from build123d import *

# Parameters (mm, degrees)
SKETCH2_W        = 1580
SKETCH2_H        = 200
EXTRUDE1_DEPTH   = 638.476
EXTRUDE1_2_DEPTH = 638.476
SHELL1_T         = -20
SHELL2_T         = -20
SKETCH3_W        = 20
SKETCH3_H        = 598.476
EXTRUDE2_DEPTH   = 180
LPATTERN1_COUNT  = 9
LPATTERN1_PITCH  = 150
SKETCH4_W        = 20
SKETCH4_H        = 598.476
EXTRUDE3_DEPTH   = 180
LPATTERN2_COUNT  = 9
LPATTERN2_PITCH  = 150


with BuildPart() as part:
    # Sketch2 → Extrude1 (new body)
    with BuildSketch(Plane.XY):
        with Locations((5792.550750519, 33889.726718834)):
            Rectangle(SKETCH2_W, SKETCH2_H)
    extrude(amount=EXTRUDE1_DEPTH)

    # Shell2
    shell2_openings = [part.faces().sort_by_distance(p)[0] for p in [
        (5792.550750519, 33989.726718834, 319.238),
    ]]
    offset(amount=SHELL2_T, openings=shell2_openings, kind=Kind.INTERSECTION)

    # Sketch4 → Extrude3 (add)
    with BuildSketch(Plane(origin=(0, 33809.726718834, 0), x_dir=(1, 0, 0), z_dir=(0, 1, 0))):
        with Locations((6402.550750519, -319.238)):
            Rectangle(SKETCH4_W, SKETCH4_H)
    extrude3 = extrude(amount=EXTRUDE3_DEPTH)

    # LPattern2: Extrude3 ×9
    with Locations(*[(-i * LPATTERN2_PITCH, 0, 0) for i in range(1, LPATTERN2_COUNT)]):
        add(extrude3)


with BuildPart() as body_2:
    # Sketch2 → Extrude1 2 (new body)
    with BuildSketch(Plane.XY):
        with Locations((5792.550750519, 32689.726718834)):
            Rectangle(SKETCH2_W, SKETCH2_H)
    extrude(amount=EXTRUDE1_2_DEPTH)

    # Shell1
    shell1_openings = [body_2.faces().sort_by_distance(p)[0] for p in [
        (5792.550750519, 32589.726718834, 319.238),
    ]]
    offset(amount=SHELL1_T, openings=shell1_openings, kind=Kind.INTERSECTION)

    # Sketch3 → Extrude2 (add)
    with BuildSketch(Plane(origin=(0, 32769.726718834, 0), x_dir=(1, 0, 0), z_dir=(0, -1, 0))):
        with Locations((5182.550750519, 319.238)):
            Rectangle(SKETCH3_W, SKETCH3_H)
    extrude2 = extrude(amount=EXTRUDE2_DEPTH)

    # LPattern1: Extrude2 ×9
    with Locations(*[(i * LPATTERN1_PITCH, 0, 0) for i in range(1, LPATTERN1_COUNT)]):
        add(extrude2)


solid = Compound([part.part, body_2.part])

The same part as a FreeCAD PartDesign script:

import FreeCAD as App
import Part
import Sketcher
Q = App.Units.Quantity


def faces_at(feature, points):
    """Names of the faces that lie closest to the given points."""
    faces = feature.Shape.Faces
    near = lambda p: min(range(len(faces)), key=lambda i: faces[i].distToShape(Part.Vertex(*p))[0])
    return sorted({f"Face{near(p) + 1}" for p in points})

doc = App.newDocument("Part")
body = doc.addObject("PartDesign::Body", "Body")

# Sketch on XY plane
sketch1 = body.newObject("Sketcher::SketchObject", "Sketch")
sketch1.AttachmentSupport = (doc.getObject("XY_Plane"), [""])
sketch1.MapMode = "FlatFace"
sketch1.addGeometry(Part.LineSegment(App.Vector(5003, 33990, 0), App.Vector(5003, 33790, 0)), False)
sketch1.addGeometry(Part.LineSegment(App.Vector(5003, 33790, 0), App.Vector(6583, 33790, 0)), False)
sketch1.addGeometry(Part.LineSegment(App.Vector(6583, 33790, 0), App.Vector(6583, 33990, 0)), False)
sketch1.addGeometry(Part.LineSegment(App.Vector(6583, 33990, 0), App.Vector(5003, 33990, 0)), False)
sketch1.addConstraint(Sketcher.Constraint("Coincident", 0, 2, 1, 1))
sketch1.addConstraint(Sketcher.Constraint("Coincident", 1, 2, 2, 1))
sketch1.addConstraint(Sketcher.Constraint("Coincident", 2, 2, 3, 1))
sketch1.addConstraint(Sketcher.Constraint("Coincident", 3, 2, 0, 1))
sketch1.addConstraint(Sketcher.Constraint("Vertical", 0))
sketch1.addConstraint(Sketcher.Constraint("Horizontal", 1))
sketch1.addConstraint(Sketcher.Constraint("Vertical", 2))
sketch1.addConstraint(Sketcher.Constraint("Horizontal", 3))
sketch1.addConstraint(Sketcher.Constraint("DistanceX", 1, 1, 1, 2, Q("1580 mm")))
sketch1.addConstraint(Sketcher.Constraint("DistanceY", 0, 2, 0, 1, Q("200 mm")))
sketch1.addConstraint(Sketcher.Constraint("DistanceX", -1, 1, 0, 2, Q("5002.550751 mm")))
sketch1.addConstraint(Sketcher.Constraint("DistanceY", -1, 1, 0, 2, Q("33789.726719 mm")))
pad1 = body.newObject("PartDesign::Pad", "Pad")
pad1.Profile = sketch1
pad1.Length = 638.476
doc.recompute()

thickness = body.newObject("PartDesign::Thickness", "Thickness")
thickness.Base = (pad1, faces_at(pad1, [(5792.551, 33989.727, 319.238)]))
thickness.Value = 20
thickness.Reversed = True
thickness.Join = "Intersection"

# Sketch on XZ plane
sketch2 = body.newObject("Sketcher::SketchObject", "Sketch001")
sketch2.AttachmentSupport = (doc.getObject("XZ_Plane"), [""])
sketch2.MapMode = "FlatFace"
sketch2.AttachmentOffset = App.Placement(App.Vector(0, 0, -33809.726719), App.Rotation())
sketch2.addGeometry(Part.LineSegment(App.Vector(6393, 20, 0), App.Vector(6393, 618, 0)), False)
sketch2.addGeometry(Part.LineSegment(App.Vector(6393, 618, 0), App.Vector(6413, 618, 0)), False)
sketch2.addGeometry(Part.LineSegment(App.Vector(6413, 618, 0), App.Vector(6413, 20, 0)), False)
sketch2.addGeometry(Part.LineSegment(App.Vector(6413, 20, 0), App.Vector(6393, 20, 0)), False)
sketch2.addConstraint(Sketcher.Constraint("Coincident", 0, 2, 1, 1))
sketch2.addConstraint(Sketcher.Constraint("Coincident", 1, 2, 2, 1))
sketch2.addConstraint(Sketcher.Constraint("Coincident", 2, 2, 3, 1))
sketch2.addConstraint(Sketcher.Constraint("Coincident", 3, 2, 0, 1))
sketch2.addConstraint(Sketcher.Constraint("Vertical", 0))
sketch2.addConstraint(Sketcher.Constraint("Horizontal", 1))
sketch2.addConstraint(Sketcher.Constraint("Vertical", 2))
sketch2.addConstraint(Sketcher.Constraint("Horizontal", 3))
sketch2.addConstraint(Sketcher.Constraint("DistanceX", 1, 1, 1, 2, Q("20 mm")))
sketch2.addConstraint(Sketcher.Constraint("DistanceY", -1, 1, 2, 2, Q("20 mm")))
sketch2.addConstraint(Sketcher.Constraint("DistanceY", 0, 1, 0, 2, Q("598.476 mm")))
sketch2.addConstraint(Sketcher.Constraint("DistanceX", -1, 1, 0, 2, Q("6392.550751 mm")))
pad2 = body.newObject("PartDesign::Pad", "Pad001")
pad2.Profile = sketch2
pad2.Length = 180
pad2.Reversed = True
doc.recompute()

linearpattern = body.newObject("PartDesign::LinearPattern", "LinearPattern")
linearpattern.Originals = [pad2]
linearpattern.Direction = (doc.getObject("X_Axis"), [""])
linearpattern.Mode = "offset"
linearpattern.Offset = 150
linearpattern.Occurrences = 9
linearpattern.Reversed = True
body.Tip = linearpattern
body2 = doc.addObject("PartDesign::Body", "Body001")

# Sketch on XY plane
sketch3 = body2.newObject("Sketcher::SketchObject", "Sketch002")
sketch3.AttachmentSupport = (doc.getObject("XY_Plane001"), [""])
sketch3.MapMode = "FlatFace"
sketch3.addGeometry(Part.LineSegment(App.Vector(5003, 32790, 0), App.Vector(5003, 32590, 0)), False)
sketch3.addGeometry(Part.LineSegment(App.Vector(5003, 32590, 0), App.Vector(6583, 32590, 0)), False)
sketch3.addGeometry(Part.LineSegment(App.Vector(6583, 32590, 0), App.Vector(6583, 32790, 0)), False)
sketch3.addGeometry(Part.LineSegment(App.Vector(6583, 32790, 0), App.Vector(5003, 32790, 0)), False)
sketch3.addConstraint(Sketcher.Constraint("Coincident", 0, 2, 1, 1))
sketch3.addConstraint(Sketcher.Constraint("Coincident", 1, 2, 2, 1))
sketch3.addConstraint(Sketcher.Constraint("Coincident", 2, 2, 3, 1))
sketch3.addConstraint(Sketcher.Constraint("Coincident", 3, 2, 0, 1))
sketch3.addConstraint(Sketcher.Constraint("Vertical", 0))
sketch3.addConstraint(Sketcher.Constraint("Horizontal", 1))
sketch3.addConstraint(Sketcher.Constraint("Vertical", 2))
sketch3.addConstraint(Sketcher.Constraint("Horizontal", 3))
sketch3.addConstraint(Sketcher.Constraint("DistanceX", 1, 1, 1, 2, Q("1580 mm")))
sketch3.addConstraint(Sketcher.Constraint("DistanceY", 0, 2, 0, 1, Q("200 mm")))
sketch3.addConstraint(Sketcher.Constraint("DistanceX", -1, 1, 0, 2, Q("5002.550751 mm")))
sketch3.addConstraint(Sketcher.Constraint("DistanceY", -1, 1, 0, 2, Q("32589.726719 mm")))
pad3 = body2.newObject("PartDesign::Pad", "Pad002")
pad3.Profile = sketch3
pad3.Length = 638.476
doc.recompute()

thickness2 = body2.newObject("PartDesign::Thickness", "Thickness001")
thickness2.Base = (pad3, faces_at(pad3, [(5792.551, 32589.727, 319.238)]))
thickness2.Value = 20
thickness2.Reversed = True
thickness2.Join = "Intersection"

# Sketch on XZ plane
sketch4 = body2.newObject("Sketcher::SketchObject", "Sketch003")
sketch4.AttachmentSupport = (doc.getObject("XZ_Plane001"), [""])
sketch4.MapMode = "FlatFace"
sketch4.AttachmentOffset = App.Placement(App.Vector(0, 0, -32769.726719), App.Rotation())
sketch4.addGeometry(Part.LineSegment(App.Vector(5173, 618, 0), App.Vector(5173, 20, 0)), False)
sketch4.addGeometry(Part.LineSegment(App.Vector(5173, 20, 0), App.Vector(5193, 20, 0)), False)
sketch4.addGeometry(Part.LineSegment(App.Vector(5193, 20, 0), App.Vector(5193, 618, 0)), False)
sketch4.addGeometry(Part.LineSegment(App.Vector(5193, 618, 0), App.Vector(5173, 618, 0)), False)
sketch4.addConstraint(Sketcher.Constraint("Coincident", 0, 2, 1, 1))
sketch4.addConstraint(Sketcher.Constraint("Coincident", 1, 2, 2, 1))
sketch4.addConstraint(Sketcher.Constraint("Coincident", 2, 2, 3, 1))
sketch4.addConstraint(Sketcher.Constraint("Coincident", 3, 2, 0, 1))
sketch4.addConstraint(Sketcher.Constraint("Vertical", 0))
sketch4.addConstraint(Sketcher.Constraint("Horizontal", 1))
sketch4.addConstraint(Sketcher.Constraint("Vertical", 2))
sketch4.addConstraint(Sketcher.Constraint("Horizontal", 3))
sketch4.addConstraint(Sketcher.Constraint("DistanceX", 1, 1, 1, 2, Q("20 mm")))
sketch4.addConstraint(Sketcher.Constraint("DistanceY", -1, 1, 0, 2, Q("20 mm")))
sketch4.addConstraint(Sketcher.Constraint("DistanceY", 0, 2, 0, 1, Q("598.476 mm")))
sketch4.addConstraint(Sketcher.Constraint("DistanceX", -1, 1, 0, 2, Q("5172.550751 mm")))
pad4 = body2.newObject("PartDesign::Pad", "Pad003")
pad4.Profile = sketch4
pad4.Length = 180
doc.recompute()

linearpattern2 = body2.newObject("PartDesign::LinearPattern", "LinearPattern001")
linearpattern2.Originals = [pad4]
linearpattern2.Direction = (doc.getObject("X_Axis001"), [""])
linearpattern2.Mode = "offset"
linearpattern2.Offset = 150
linearpattern2.Occurrences = 9
body2.Tip = linearpattern2

doc.recompute()
